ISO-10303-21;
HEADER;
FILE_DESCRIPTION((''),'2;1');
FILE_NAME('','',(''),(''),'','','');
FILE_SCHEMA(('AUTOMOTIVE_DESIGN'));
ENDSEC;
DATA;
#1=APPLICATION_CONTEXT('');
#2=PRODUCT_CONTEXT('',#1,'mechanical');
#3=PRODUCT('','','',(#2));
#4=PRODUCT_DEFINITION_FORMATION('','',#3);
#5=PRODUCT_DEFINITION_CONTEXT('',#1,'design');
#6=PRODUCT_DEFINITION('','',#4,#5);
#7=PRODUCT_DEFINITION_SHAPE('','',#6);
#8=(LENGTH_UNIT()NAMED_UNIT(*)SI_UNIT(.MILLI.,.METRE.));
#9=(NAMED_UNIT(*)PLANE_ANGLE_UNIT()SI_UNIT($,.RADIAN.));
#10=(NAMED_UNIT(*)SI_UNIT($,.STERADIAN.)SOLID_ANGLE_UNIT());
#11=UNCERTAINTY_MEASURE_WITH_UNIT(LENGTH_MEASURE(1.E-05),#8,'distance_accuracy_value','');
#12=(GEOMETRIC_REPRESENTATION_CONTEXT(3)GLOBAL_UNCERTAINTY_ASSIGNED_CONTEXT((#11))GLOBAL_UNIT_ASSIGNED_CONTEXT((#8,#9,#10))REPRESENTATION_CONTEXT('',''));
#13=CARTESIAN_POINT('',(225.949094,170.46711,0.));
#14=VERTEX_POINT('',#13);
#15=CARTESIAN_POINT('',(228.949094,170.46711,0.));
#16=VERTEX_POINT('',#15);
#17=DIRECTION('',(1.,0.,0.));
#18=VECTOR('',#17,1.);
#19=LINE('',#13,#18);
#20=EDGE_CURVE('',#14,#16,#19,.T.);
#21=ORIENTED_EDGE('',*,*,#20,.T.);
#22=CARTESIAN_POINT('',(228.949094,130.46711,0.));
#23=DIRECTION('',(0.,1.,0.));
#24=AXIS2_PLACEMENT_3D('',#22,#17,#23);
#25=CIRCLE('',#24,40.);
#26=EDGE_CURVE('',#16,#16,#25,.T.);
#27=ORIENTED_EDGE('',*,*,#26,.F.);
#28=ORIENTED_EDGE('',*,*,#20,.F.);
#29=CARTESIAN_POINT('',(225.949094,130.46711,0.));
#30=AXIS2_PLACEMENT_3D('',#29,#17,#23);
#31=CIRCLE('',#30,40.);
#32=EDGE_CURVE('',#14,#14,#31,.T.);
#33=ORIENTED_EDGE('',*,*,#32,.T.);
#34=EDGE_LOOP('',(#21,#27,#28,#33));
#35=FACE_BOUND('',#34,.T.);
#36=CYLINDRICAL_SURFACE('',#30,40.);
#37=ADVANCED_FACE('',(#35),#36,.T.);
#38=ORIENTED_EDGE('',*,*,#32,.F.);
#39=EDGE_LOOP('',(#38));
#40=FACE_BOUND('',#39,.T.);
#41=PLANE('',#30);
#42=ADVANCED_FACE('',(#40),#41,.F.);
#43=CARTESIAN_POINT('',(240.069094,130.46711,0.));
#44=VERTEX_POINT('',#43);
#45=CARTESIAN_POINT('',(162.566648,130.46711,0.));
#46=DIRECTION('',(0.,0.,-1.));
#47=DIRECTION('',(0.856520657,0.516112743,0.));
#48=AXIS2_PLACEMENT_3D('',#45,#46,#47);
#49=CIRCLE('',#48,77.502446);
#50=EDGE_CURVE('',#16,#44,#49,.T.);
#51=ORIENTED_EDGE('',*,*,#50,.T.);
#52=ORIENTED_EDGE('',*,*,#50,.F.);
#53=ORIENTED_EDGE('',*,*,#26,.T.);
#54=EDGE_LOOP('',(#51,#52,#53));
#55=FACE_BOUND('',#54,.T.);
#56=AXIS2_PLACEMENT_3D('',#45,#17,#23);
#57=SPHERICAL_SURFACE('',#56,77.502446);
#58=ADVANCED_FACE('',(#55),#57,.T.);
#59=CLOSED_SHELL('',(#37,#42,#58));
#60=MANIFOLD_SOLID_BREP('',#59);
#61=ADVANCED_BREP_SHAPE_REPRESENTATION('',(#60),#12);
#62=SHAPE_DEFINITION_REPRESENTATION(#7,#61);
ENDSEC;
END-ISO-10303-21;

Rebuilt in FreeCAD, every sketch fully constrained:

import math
import FreeCAD as App
import Part
import Sketcher
from FreeCAD import Vector

doc = App.newDocument("Part")
params = doc.addObject("Spreadsheet::Sheet", "Params")
for row, (alias, value) in enumerate([
    ("sketch1_width", "3 mm"),
    ("sketch1_height", "40 mm"),
    ("sketch1_width2", "14.12 mm"),
    ("revolution_angle", "360 deg"),
], start=1):
    params.set(f"A{row}", alias)
    params.set(f"B{row}", "=" + value)
    params.setAlias(f"B{row}", alias)

body = doc.addObject("PartDesign::Body", "Body")

# Sketch on XY plane
sketch1 = doc.addObject("Sketcher::SketchObject", "Sketch")
body.addObject(sketch1)
sketch1.AttachmentSupport = (doc.XY_Plane, [""])
sketch1.MapMode = "FlatFace"
sketch1.addGeometry([
    Part.LineSegment(Vector(225.949094, 170.46711, 0), Vector(225.949094, 130.46711, 0)),
    Part.LineSegment(Vector(225.949094, 130.46711, 0), Vector(240.069094, 130.46711, 0)),
    Part.ArcOfCircle(Part.Circle(Vector(162.566648, 130.46711, 0), Vector(0, 0, 1), 77.502446), math.radians(0), math.radians(31.071861)),
    Part.LineSegment(Vector(228.949094, 170.46711, 0), Vector(225.949094, 170.46711, 0)),
], False)
sketch1.addGeometry(Part.LineSegment(Vector(162.566648, 130.46711, 0), Vector(240.069094, 130.46711, 0)), True)  # axis
sketch1.addConstraint([
    Sketcher.Constraint("Coincident", 0, 2, 1, 1),
    Sketcher.Constraint("Coincident", 1, 2, 2, 1),
    Sketcher.Constraint("Coincident", 2, 2, 3, 1),
    Sketcher.Constraint("Coincident", 3, 2, 0, 1),
    Sketcher.Constraint("Vertical", 0),
    Sketcher.Constraint("Horizontal", 1),
    Sketcher.Constraint("Horizontal", 3),
    Sketcher.Constraint("Horizontal", 4),
    Sketcher.Constraint("Coincident", 4, 1, 2, 3),
    Sketcher.Constraint("Coincident", 4, 2, 1, 2),
    Sketcher.Constraint("DistanceX", 3, 2, 3, 1, 3.0),
    Sketcher.Constraint("DistanceY", 0, 2, 0, 1, 40.0),
    Sketcher.Constraint("DistanceX", 1, 1, 1, 2, 14.12),
    Sketcher.Constraint("DistanceX", -1, 1, 2, 3, 162.566648),
    Sketcher.Constraint("DistanceY", -1, 1, 2, 3, 130.46711),
])
sketch1.setExpression("Constraints[10]", "Params.sketch1_width")
sketch1.setExpression("Constraints[11]", "Params.sketch1_height")
sketch1.setExpression("Constraints[12]", "Params.sketch1_width2")
revolution = doc.addObject("PartDesign::Revolution", "Revolution")
body.addObject(revolution)
revolution.Profile = sketch1
revolution.ReferenceAxis = (sketch1, ["Axis0"])
revolution.setExpression("Angle", "Params.revolution_angle")

doc.recompute()
